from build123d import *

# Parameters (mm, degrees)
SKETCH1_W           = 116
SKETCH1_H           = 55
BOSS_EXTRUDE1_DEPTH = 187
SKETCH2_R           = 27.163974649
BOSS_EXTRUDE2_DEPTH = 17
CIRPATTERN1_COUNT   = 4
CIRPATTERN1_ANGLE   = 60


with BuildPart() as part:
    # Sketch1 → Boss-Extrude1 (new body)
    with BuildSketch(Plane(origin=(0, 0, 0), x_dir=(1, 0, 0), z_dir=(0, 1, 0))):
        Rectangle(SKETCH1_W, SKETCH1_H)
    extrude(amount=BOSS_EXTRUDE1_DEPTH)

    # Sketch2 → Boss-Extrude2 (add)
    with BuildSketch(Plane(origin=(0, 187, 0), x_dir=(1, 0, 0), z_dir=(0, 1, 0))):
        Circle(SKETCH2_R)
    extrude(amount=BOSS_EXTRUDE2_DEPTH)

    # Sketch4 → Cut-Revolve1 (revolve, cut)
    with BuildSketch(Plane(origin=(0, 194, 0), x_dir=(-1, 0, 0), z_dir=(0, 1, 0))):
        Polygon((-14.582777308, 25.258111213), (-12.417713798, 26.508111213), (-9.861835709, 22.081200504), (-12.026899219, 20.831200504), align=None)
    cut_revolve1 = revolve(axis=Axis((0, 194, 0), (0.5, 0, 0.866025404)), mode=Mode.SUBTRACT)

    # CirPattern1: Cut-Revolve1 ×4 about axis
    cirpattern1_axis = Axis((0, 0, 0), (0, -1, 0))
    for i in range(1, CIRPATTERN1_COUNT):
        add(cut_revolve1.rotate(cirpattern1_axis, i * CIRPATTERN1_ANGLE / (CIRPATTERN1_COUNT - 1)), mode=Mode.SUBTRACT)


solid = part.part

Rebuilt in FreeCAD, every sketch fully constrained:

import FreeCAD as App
import Part
import Sketcher
from FreeCAD import Vector
Q = App.Units.Quantity


def add_polygon(sketch, points):
    """Adds a closed chain of lines whose ends are joined by coincident constraints."""
    first, n = sketch.GeometryCount, len(points)
    for a, b in zip(points, points[1:] + points[:1]):
        sketch.addGeometry(Part.LineSegment(App.Vector(*a, 0), App.Vector(*b, 0)), False)
    for i in range(n):
        sketch.addConstraint(Sketcher.Constraint("Coincident", first + i, 2, first + (i + 1) % n, 1))

doc = App.newDocument("Part")
body = doc.addObject("PartDesign::Body", "Body")

# Sketch on XZ plane
sketch1 = body.newObject("Sketcher::SketchObject", "Sketch")
sketch1.AttachmentSupport = (doc.getObject("XZ_Plane"), [""])
sketch1.MapMode = "FlatFace"
add_polygon(sketch1, [(-58, -28), (-58, 28), (58, 28), (58, -28)])  # lines 0-3
sketch1.addConstraint([
    Sketcher.Constraint("Vertical", 0),
    Sketcher.Constraint("Horizontal", 1),
    Sketcher.Constraint("Vertical", 2),
    Sketcher.Constraint("Horizontal", 3),
    Sketcher.Constraint("Symmetric", 0, 2, 2, 2, -1, 1),
    Sketcher.Constraint("DistanceX", 1, 1, 1, 2, Q("116 mm")),
    Sketcher.Constraint("DistanceY", 0, 1, 0, 2, Q("55 mm")),
])
pad1 = body.newObject("PartDesign::Pad", "Pad")
pad1.Profile = sketch1
pad1.Length = 187
pad1.Reversed = True

# Sketch on XZ plane
sketch2 = body.newObject("Sketcher::SketchObject", "Sketch001")
sketch2.AttachmentSupport = (doc.getObject("XZ_Plane"), [""])
sketch2.MapMode = "FlatFace"
sketch2.AttachmentOffset = App.Placement(Vector(0, 0, -187), App.Rotation())
sketch2.addGeometry(Part.Circle(Vector(0, 0, 0), Vector(0, 0, 1), 27), False)
sketch2.addConstraint([
    Sketcher.Constraint("Coincident", 0, 3, -1, 1),
    Sketcher.Constraint("Diameter", 0, Q("54.327949 mm")),
])
pad2 = body.newObject("PartDesign::Pad", "Pad001")
pad2.Profile = sketch2
pad2.Length = 17
pad2.Reversed = True

# Sketch on XZ plane
sketch3 = body.newObject("Sketcher::SketchObject", "Sketch002")
sketch3.AttachmentSupport = (doc.getObject("XZ_Plane"), [""])
sketch3.MapMode = "FlatFace"
sketch3.AttachmentOffset = App.Placement(Vector(0, 0, -194), App.Rotation())
add_polygon(sketch3, [(12.4, 26.5), (14.6, 25.3), (12, 20.8), (9.9, 22.1)])  # lines 0-3
sketch3.addGeometry(Part.LineSegment(Vector(12, 20.8, 0), Vector(14.6, 25.3, 0)), True)  # axis
sketch3.addConstraint([
    Sketcher.Constraint("Coincident", 4, 1, 1, 2),
    Sketcher.Constraint("Coincident", 4, 2, 0, 2),
    Sketcher.Constraint("Perpendicular", 0, 1),
    Sketcher.Constraint("Perpendicular", 1, 2),
    Sketcher.Constraint("Perpendicular", 2, 3),
    Sketcher.Constraint("Angle", 0, Q("-30 deg")),
    Sketcher.Constraint("Distance", 0, Q("2.5 mm")),
    Sketcher.Constraint("DistanceX", -1, 1, 1, 2, Q("12.026899 mm")),
    Sketcher.Constraint("DistanceY", -1, 1, 1, 2, Q("20.831201 mm")),
    Sketcher.Constraint("DistanceY", -1, 1, 0, 2, Q("25.258111 mm")),
])
groove = body.newObject("PartDesign::Groove", "Groove")
groove.Profile = sketch3
groove.ReferenceAxis = (sketch3, ["Axis0"])
groove.Angle = 360
doc.recompute()

polarpattern = body.newObject("PartDesign::PolarPattern", "PolarPattern")
polarpattern.Originals = [groove]
polarpattern.Axis = (doc.getObject("Y_Axis"), [""])
polarpattern.Angle = 60
polarpattern.Occurrences = 4
polarpattern.Reversed = True
body.Tip = polarpattern

doc.recompute()
